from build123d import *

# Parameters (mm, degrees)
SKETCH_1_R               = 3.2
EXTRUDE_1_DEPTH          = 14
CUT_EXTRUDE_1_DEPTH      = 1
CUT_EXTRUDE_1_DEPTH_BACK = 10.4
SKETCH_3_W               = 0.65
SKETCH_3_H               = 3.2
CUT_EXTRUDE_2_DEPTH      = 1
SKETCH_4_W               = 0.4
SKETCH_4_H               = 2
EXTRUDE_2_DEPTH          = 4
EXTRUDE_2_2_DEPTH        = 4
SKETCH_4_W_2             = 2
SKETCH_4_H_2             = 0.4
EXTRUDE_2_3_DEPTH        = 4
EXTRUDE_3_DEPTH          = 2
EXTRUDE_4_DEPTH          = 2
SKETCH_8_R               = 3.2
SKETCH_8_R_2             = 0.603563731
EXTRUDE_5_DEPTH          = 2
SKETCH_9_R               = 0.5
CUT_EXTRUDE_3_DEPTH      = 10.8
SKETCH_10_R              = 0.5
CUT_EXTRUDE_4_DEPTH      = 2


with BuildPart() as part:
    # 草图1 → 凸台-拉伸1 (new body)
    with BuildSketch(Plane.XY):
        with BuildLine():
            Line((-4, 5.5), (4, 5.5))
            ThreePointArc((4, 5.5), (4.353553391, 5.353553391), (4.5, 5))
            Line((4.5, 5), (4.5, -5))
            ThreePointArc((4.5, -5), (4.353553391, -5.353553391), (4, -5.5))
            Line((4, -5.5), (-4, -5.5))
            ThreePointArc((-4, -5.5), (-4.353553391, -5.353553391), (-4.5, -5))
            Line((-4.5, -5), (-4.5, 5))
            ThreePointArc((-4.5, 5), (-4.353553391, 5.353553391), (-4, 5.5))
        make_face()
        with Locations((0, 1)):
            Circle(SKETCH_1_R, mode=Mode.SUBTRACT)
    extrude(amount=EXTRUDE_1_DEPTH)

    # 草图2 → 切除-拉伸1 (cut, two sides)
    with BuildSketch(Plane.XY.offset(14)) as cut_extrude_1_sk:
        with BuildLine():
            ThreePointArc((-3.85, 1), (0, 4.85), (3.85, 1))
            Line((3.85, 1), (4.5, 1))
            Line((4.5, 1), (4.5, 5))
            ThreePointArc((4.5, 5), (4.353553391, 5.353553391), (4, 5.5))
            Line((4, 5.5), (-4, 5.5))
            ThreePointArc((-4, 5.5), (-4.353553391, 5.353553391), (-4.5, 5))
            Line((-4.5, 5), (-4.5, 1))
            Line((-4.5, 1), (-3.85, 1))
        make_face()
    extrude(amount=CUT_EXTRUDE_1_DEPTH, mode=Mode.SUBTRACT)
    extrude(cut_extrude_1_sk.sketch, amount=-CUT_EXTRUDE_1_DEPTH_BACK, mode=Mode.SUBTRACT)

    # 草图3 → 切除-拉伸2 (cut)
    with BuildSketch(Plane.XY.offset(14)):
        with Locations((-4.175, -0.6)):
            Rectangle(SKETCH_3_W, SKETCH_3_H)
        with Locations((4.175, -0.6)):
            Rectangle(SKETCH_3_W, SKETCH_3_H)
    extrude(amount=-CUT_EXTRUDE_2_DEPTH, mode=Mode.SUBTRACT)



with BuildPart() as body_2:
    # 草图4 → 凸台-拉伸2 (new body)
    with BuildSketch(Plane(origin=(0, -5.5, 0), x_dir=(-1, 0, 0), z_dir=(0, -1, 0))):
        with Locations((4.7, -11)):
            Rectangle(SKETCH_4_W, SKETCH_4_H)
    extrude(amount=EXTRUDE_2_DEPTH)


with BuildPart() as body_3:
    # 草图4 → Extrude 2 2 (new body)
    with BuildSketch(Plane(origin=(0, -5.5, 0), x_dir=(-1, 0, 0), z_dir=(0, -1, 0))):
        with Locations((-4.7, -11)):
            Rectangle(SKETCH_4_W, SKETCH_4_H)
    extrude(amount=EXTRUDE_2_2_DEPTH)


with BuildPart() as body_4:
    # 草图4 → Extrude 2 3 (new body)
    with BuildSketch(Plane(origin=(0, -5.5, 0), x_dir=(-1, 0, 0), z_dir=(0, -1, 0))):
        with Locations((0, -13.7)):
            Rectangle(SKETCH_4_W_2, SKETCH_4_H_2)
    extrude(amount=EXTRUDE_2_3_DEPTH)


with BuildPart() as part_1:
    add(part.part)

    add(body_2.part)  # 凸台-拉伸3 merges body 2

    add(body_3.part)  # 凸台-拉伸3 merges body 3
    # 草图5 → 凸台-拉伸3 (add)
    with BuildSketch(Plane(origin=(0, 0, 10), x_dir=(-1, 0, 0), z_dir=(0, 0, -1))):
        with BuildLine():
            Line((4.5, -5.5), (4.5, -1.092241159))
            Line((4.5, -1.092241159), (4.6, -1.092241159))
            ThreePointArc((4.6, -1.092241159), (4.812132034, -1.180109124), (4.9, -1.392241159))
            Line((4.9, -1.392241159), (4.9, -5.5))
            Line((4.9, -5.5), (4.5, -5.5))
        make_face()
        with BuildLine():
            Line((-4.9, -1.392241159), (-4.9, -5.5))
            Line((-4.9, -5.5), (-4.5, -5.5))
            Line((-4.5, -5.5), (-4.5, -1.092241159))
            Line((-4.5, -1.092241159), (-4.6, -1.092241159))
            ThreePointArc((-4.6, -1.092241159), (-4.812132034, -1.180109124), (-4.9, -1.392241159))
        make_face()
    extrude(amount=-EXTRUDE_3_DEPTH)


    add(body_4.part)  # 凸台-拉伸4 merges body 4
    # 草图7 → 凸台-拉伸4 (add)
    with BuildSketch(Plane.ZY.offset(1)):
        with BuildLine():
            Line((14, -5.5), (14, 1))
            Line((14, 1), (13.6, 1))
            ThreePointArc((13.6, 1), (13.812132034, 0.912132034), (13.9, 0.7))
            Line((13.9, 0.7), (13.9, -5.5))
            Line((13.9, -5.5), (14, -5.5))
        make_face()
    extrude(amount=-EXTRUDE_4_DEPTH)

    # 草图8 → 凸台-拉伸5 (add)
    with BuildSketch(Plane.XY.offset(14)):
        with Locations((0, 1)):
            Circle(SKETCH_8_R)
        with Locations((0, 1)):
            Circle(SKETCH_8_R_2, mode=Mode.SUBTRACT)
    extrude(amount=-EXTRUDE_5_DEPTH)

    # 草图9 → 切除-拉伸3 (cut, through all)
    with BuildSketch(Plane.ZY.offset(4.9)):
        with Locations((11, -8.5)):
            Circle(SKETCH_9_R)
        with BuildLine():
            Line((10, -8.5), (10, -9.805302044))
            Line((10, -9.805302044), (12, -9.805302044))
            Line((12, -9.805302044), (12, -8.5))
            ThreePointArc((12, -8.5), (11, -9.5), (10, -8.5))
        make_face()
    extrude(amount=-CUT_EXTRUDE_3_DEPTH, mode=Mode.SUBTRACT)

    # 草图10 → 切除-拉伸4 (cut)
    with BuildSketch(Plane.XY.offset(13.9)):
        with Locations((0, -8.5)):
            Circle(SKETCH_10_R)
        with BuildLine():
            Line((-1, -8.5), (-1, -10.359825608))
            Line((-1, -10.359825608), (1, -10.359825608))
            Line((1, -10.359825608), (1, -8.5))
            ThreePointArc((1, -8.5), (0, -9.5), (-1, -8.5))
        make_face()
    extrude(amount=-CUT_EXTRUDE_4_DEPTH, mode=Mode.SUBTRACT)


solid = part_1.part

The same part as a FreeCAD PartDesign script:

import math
import FreeCAD as App
import Part
import Sketcher
from FreeCAD import Vector


def add_polygon(sketch, points):
    """Adds a closed chain of lines whose ends are joined by coincident constraints."""
    first, n = sketch.GeometryCount, len(points)
    for a, b in zip(points, points[1:] + points[:1]):
        sketch.addGeometry(Part.LineSegment(App.Vector(*a, 0), App.Vector(*b, 0)), False)
    for i in range(n):
        sketch.addConstraint(Sketcher.Constraint("Coincident", first + i, 2, first + (i + 1) % n, 1))

doc = App.newDocument("Part")
body = doc.addObject("PartDesign::Body", "Body")

sketch1 = doc.addObject("Sketcher::SketchObject", "Sketch")
body.addObject(sketch1)
sketch1.AttachmentSupport = (doc.XY_Plane, [""])
sketch1.MapMode = "FlatFace"
sketch1.addGeometry([
    Part.LineSegment(Vector(4, 5.5, 0), Vector(-4, 5.5, 0)),
    Part.ArcOfCircle(Part.Circle(Vector(-4, 5, 0), Vector(0, 0, 1), 0.5), math.radians(90), math.radians(180)),
    Part.LineSegment(Vector(-4.5, 5, 0), Vector(-4.5, -5, 0)),
    Part.ArcOfCircle(Part.Circle(Vector(-4, -5, 0), Vector(0, 0, 1), 0.5), math.radians(180), math.radians(270)),
    Part.LineSegment(Vector(-4, -5.5, 0), Vector(4, -5.5, 0)),
    Part.ArcOfCircle(Part.Circle(Vector(4, -5, 0), Vector(0, 0, 1), 0.5), math.radians(-90), math.radians(0)),
    Part.LineSegment(Vector(4.5, -5, 0), Vector(4.5, 5, 0)),
    Part.ArcOfCircle(Part.Circle(Vector(4, 5, 0), Vector(0, 0, 1), 0.5), math.radians(0), math.radians(90)),
    Part.Circle(Vector(0, 1, 0), Vector(0, 0, 1), 3.2),
], False)
sketch1.addConstraint([
    Sketcher.Constraint("Tangent", 0, 2, 1, 1),
    Sketcher.Constraint("Tangent", 1, 2, 2, 1),
    Sketcher.Constraint("Tangent", 2, 2, 3, 1),
    Sketcher.Constraint("Tangent", 3, 2, 4, 1),
    Sketcher.Constraint("Tangent", 4, 2, 5, 1),
    Sketcher.Constraint("Tangent", 5, 2, 6, 1),
    Sketcher.Constraint("Tangent", 6, 2, 7, 1),
    Sketcher.Constraint("Tangent", 7, 2, 0, 1),
    Sketcher.Constraint("Horizontal", 0),
    Sketcher.Constraint("Vertical", 2),
    Sketcher.Constraint("Horizontal", 4),
    Sketcher.Constraint("Vertical", 6),
    Sketcher.Constraint("Equal", 1, 3),
    Sketcher.Constraint("Equal", 3, 5),
    Sketcher.Constraint("Equal", 5, 7),
    Sketcher.Constraint("Symmetric", 1, 3, 5, 3, -1, 1),
    Sketcher.Constraint("PointOnObject", 8, 3, -2),
    Sketcher.Constraint("Diameter", 8, 6.4),
    Sketcher.Constraint("Radius", 1, 0.5),
    Sketcher.Constraint("DistanceX", 0, 2, 0, 1, 8.0),
    Sketcher.Constraint("DistanceY", 2, 2, 2, 1, 10.0),
    Sketcher.Constraint("DistanceY", -1, 1, 8, 3, 1.0),
])
pad1 = doc.addObject("PartDesign::Pad", "Pad")
body.addObject(pad1)
pad1.Profile = sketch1
pad1.Length = 14

sketch2 = doc.addObject("Sketcher::SketchObject", "Sketch001")
body.addObject(sketch2)
sketch2.AttachmentSupport = (doc.XY_Plane, [""])
sketch2.MapMode = "FlatFace"
sketch2.AttachmentOffset = App.Placement(Vector(0, 0, 14), App.Rotation())
sketch2.addGeometry([
    Part.ArcOfCircle(Part.Circle(Vector(0, 1, 0), Vector(0, 0, 1), 3.85), math.radians(0), math.radians(180)),
    Part.LineSegment(Vector(3.85, 1, 0), Vector(4.5, 1, 0)),
    Part.LineSegment(Vector(4.5, 1, 0), Vector(4.5, 5, 0)),
    Part.ArcOfCircle(Part.Circle(Vector(4, 5, 0), Vector(0, 0, 1), 0.5), math.radians(0), math.radians(90)),
    Part.LineSegment(Vector(4, 5.5, 0), Vector(-4, 5.5, 0)),
    Part.ArcOfCircle(Part.Circle(Vector(-4, 5, 0), Vector(0, 0, 1), 0.5), math.radians(90), math.radians(180)),
    Part.LineSegment(Vector(-4.5, 5, 0), Vector(-4.5, 1, 0)),
    Part.LineSegment(Vector(-4.5, 1, 0), Vector(-3.85, 1, 0)),
], False)
sketch2.addConstraint([
    Sketcher.Constraint("Coincident", 0, 1, 1, 1),
    Sketcher.Constraint("Coincident", 1, 2, 2, 1),
    Sketcher.Constraint("Tangent", 2, 2, 3, 1),
    Sketcher.Constraint("Tangent", 3, 2, 4, 1),
    Sketcher.Constraint("Tangent", 4, 2, 5, 1),
    Sketcher.Constraint("Tangent", 5, 2, 6, 1),
    Sketcher.Constraint("Coincident", 6, 2, 7, 1),
    Sketcher.Constraint("Coincident", 7, 2, 0, 2),
    Sketcher.Constraint("Horizontal", 1),
    Sketcher.Constraint("Vertical", 2),
    Sketcher.Constraint("Horizontal", 4),
    Sketcher.Constraint("Vertical", 6),
    Sketcher.Constraint("Horizontal", 7),
    Sketcher.Constraint("Equal", 3, 5),
    Sketcher.Constraint("Symmetric", 1, 2, 6, 2, -2),
    Sketcher.Constraint("PointOnObject", 0, 3, -2),
    Sketcher.Constraint("Radius", 3, 0.5),
    Sketcher.Constraint("DistanceX", 4, 2, 4, 1, 8.0),
    Sketcher.Constraint("DistanceY", 2, 1, 2, 2, 4.0),
    Sketcher.Constraint("Radius", 0, 3.85),
    Sketcher.Constraint("DistanceY", -1, 1, 0, 3, 1.0),
    Sketcher.Constraint("DistanceY", -1, 1, 3, 3, 5.0),
])
pocket1 = doc.addObject("PartDesign::Pocket", "Pocket")
body.addObject(pocket1)
pocket1.Profile = sketch2
pocket1.Type = "TwoLengths"
pocket1.Length = 1
pocket1.Length2 = 10.4
pocket1.Reversed = True

sketch3 = doc.addObject("Sketcher::SketchObject", "Sketch002")
body.addObject(sketch3)
sketch3.AttachmentSupport = (doc.XY_Plane, [""])
sketch3.MapMode = "FlatFace"
sketch3.AttachmentOffset = App.Placement(Vector(0, 0, 14), App.Rotation())
add_polygon(sketch3, [(-4.5, 1), (-4.5, -2.2), (-3.9, -2.2), (-3.9, 1)])
add_polygon(sketch3, [(3.9, 1), (3.9, -2.2), (4.5, -2.2), (4.5, 1)])
sketch3.addConstraint([
    Sketcher.Constraint("Vertical", 0),
    Sketcher.Constraint("Horizontal", 1),
    Sketcher.Constraint("Vertical", 2),
    Sketcher.Constraint("Horizontal", 3),
    Sketcher.Constraint("Vertical", 4),
    Sketcher.Constraint("Horizontal", 5),
    Sketcher.Constraint("Vertical", 6),
    Sketcher.Constraint("Horizontal", 7),
    Sketcher.Constraint("Symmetric", 1, 2, 4, 2, -2),
    Sketcher.Constraint("Symmetric", 3, 2, 6, 2, -2),
    Sketcher.Constraint("DistanceY", 0, 2, 0, 1, 3.2),
    Sketcher.Constraint("DistanceY", -1, 1, 2, 2, 1.0),
    Sketcher.Constraint("DistanceX", 0, 2, 5, 2, 9.0),
    Sketcher.Constraint("DistanceX", 1, 1, 1, 2, 0.65),
])
pocket2 = doc.addObject("PartDesign::Pocket", "Pocket001")
body.addObject(pocket2)
pocket2.Profile = sketch3
pocket2.Length = 1
body2 = doc.addObject("PartDesign::Body", "Body001")

sketch4 = doc.addObject("Sketcher::SketchObject", "Sketch003")
body2.addObject(sketch4)
sketch4.AttachmentSupport = (doc.getObject("XZ_Plane001"), [""])
sketch4.MapMode = "FlatFace"
sketch4.AttachmentOffset = App.Placement(Vector(0, 0, 5.5), App.Rotation())
add_polygon(sketch4, [(-4.5, 10), (-4.5, 12), (-4.9, 12), (-4.9, 10)])
sketch4.addConstraint([
    Sketcher.Constraint("Vertical", 0),
    Sketcher.Constraint("Horizontal", 1),
    Sketcher.Constraint("Vertical", 2),
    Sketcher.Constraint("Horizontal", 3),
    Sketcher.Constraint("DistanceY", 0, 1, 0, 2, 2.0),
    Sketcher.Constraint("DistanceX", 1, 2, 1, 1, 0.4),
    Sketcher.Constraint("DistanceY", -1, 1, 0, 2, 12.0),
    Sketcher.Constraint("DistanceX", 0, 2, -1, 1, 4.5),
])
pad2 = doc.addObject("PartDesign::Pad", "Pad001")
body2.addObject(pad2)
pad2.Profile = sketch4
pad2.Length = 4
body3 = doc.addObject("PartDesign::Body", "Body002")

sketch5 = doc.addObject("Sketcher::SketchObject", "Sketch004")
body3.addObject(sketch5)
sketch5.AttachmentSupport = (doc.getObject("XZ_Plane002"), [""])
sketch5.MapMode = "FlatFace"
sketch5.AttachmentOffset = App.Placement(Vector(0, 0, 5.5), App.Rotation())
add_polygon(sketch5, [(4.9, 10), (4.9, 12), (4.5, 12), (4.5, 10)])
sketch5.addConstraint([
    Sketcher.Constraint("Vertical", 0),
    Sketcher.Constraint("Horizontal", 1),
    Sketcher.Constraint("Vertical", 2),
    Sketcher.Constraint("Horizontal", 3),
    Sketcher.Constraint("DistanceY", 0, 1, 0, 2, 2.0),
    Sketcher.Constraint("DistanceX", 1, 2, 1, 1, 0.4),
    Sketcher.Constraint("DistanceY", -1, 1, 0, 2, 12.0),
    Sketcher.Constraint("DistanceX", -1, 1, 0, 2, 4.9),
])
pad3 = doc.addObject("PartDesign::Pad", "Pad002")
body3.addObject(pad3)
pad3.Profile = sketch5
pad3.Length = 4
body4 = doc.addObject("PartDesign::Body", "Body003")

sketch6 = doc.addObject("Sketcher::SketchObject", "Sketch005")
body4.addObject(sketch6)
sketch6.AttachmentSupport = (doc.getObject("XZ_Plane003"), [""])
sketch6.MapMode = "FlatFace"
sketch6.AttachmentOffset = App.Placement(Vector(0, 0, 5.5), App.Rotation())
add_polygon(sketch6, [(1, 13.5), (1, 13.9), (-1, 13.9), (-1, 13.5)])
sketch6.addConstraint([
    Sketcher.Constraint("Vertical", 0),
    Sketcher.Constraint("Horizontal", 1),
    Sketcher.Constraint("Vertical", 2),
    Sketcher.Constraint("Horizontal", 3),
    Sketcher.Constraint("DistanceX", 1, 2, 1, 1, 2.0),
    Sketcher.Constraint("DistanceY", 0, 1, 0, 2, 0.4),
    Sketcher.Constraint("DistanceX", -1, 1, 0, 2, 1.0),
    Sketcher.Constraint("DistanceY", -1, 1, 0, 2, 13.9),
])
pad4 = doc.addObject("PartDesign::Pad", "Pad003")
body4.addObject(pad4)
pad4.Profile = sketch6
pad4.Length = 4
body.AllowCompound = True
doc.recompute()

boolean = doc.addObject("PartDesign::Boolean", "Boolean")
body.addObject(boolean)
boolean.Type = "Fuse"
boolean.addObjects([body2])
doc.recompute()

boolean2 = doc.addObject("PartDesign::Boolean", "Boolean001")
body.addObject(boolean2)
boolean2.Type = "Fuse"
boolean2.addObjects([body3])

sketch7 = doc.addObject("Sketcher::SketchObject", "Sketch006")
body.addObject(sketch7)
sketch7.AttachmentSupport = (doc.XY_Plane, [""])
sketch7.MapMode = "FlatFace"
sketch7.AttachmentOffset = App.Placement(Vector(0, 0, 10), App.Rotation())
sketch7.addGeometry([
    Part.LineSegment(Vector(-4.5, -1.09, 0), Vector(-4.5, -5.5, 0)),
    Part.LineSegment(Vector(-4.5, -5.5, 0), Vector(-4.9, -5.5, 0)),
    Part.LineSegment(Vector(-4.9, -5.5, 0), Vector(-4.9, -1.39, 0)),
    Part.ArcOfCircle(Part.Circle(Vector(-4.6, -1.39, 0), Vector(0, 0, 1), 0.3), math.radians(90), math.radians(180)),
    Part.LineSegment(Vector(-4.6, -1.09, 0), Vector(-4.5, -1.09, 0)),
    Part.LineSegment(Vector(4.9, -1.39, 0), Vector(4.9, -5.5, 0)),
    Part.LineSegment(Vector(4.9, -5.5, 0), Vector(4.5, -5.5, 0)),
    Part.LineSegment(Vector(4.5, -5.5, 0), Vector(4.5, -1.09, 0)),
    Part.LineSegment(Vector(4.5, -1.09, 0), Vector(4.6, -1.09, 0)),
    Part.ArcOfCircle(Part.Circle(Vector(4.6, -1.39, 0), Vector(0, 0, 1), 0.3), math.radians(0), math.radians(90)),
], False)
sketch7.addConstraint([
    Sketcher.Constraint("Coincident", 0, 2, 1, 1),
    Sketcher.Constraint("Coincident", 1, 2, 2, 1),
    Sketcher.Constraint("Tangent", 2, 2, 3, 2),
    Sketcher.Constraint("Tangent", 3, 1, 4, 1),
    Sketcher.Constraint("Coincident", 4, 2, 0, 1),
    Sketcher.Constraint("Coincident", 5, 2, 6, 1),
    Sketcher.Constraint("Coincident", 6, 2, 7, 1),
    Sketcher.Constraint("Coincident", 7, 2, 8, 1),
    Sketcher.Constraint("Tangent", 8, 2, 9, 2),
    Sketcher.Constraint("Tangent", 9, 1, 5, 1),
    Sketcher.Constraint("Vertical", 0),
    Sketcher.Constraint("Horizontal", 1),
    Sketcher.Constraint("Vertical", 2),
    Sketcher.Constraint("Horizontal", 4),
    Sketcher.Constraint("Vertical", 5),
    Sketcher.Constraint("Horizontal", 6),
    Sketcher.Constraint("Vertical", 7),
    Sketcher.Constraint("Horizontal", 8),
    Sketcher.Constraint("Equal", 3, 9),
    Sketcher.Constraint("Symmetric", 3, 3, 9, 3, -2),
    Sketcher.Constraint("Symmetric", 0, 2, 6, 2, -2),
    Sketcher.Constraint("Radius", 3, 0.3),
    Sketcher.Constraint("DistanceX", 1, 2, 1, 1, 0.4),
    Sketcher.Constraint("DistanceX", 0, 2, 6, 2, 9.0),
    Sketcher.Constraint("DistanceY", 0, 2, -1, 1, 5.5),
    Sketcher.Constraint("DistanceY", 0, 2, 0, 1, 4.407759),
])
pad5 = doc.addObject("PartDesign::Pad", "Pad004")
body.addObject(pad5)
pad5.Profile = sketch7
pad5.Length = 2
doc.recompute()

boolean3 = doc.addObject("PartDesign::Boolean", "Boolean002")
body.addObject(boolean3)
boolean3.Type = "Fuse"
boolean3.addObjects([body4])

sketch8 = doc.addObject("Sketcher::SketchObject", "Sketch007")
body.addObject(sketch8)
sketch8.AttachmentSupport = (doc.YZ_Plane, [""])
sketch8.MapMode = "FlatFace"
sketch8.AttachmentOffset = App.Placement(Vector(0, 0, -1), App.Rotation())
sketch8.addGeometry([
    Part.LineSegment(Vector(-5.5, 14, 0), Vector(1, 14, 0)),
    Part.LineSegment(Vector(1, 14, 0), Vector(1, 13.6, 0)),
    Part.ArcOfCircle(Part.Circle(Vector(0.7, 13.6, 0), Vector(0, 0, 1), 0.3), math.radians(0), math.radians(90)),
    Part.LineSegment(Vector(0.7, 13.9, 0), Vector(-5.5, 13.9, 0)),
    Part.LineSegment(Vector(-5.5, 13.9, 0), Vector(-5.5, 14, 0)),
], False)
sketch8.addConstraint([
    Sketcher.Constraint("Coincident", 0, 2, 1, 1),
    Sketcher.Constraint("Tangent", 1, 2, 2, 1),
    Sketcher.Constraint("Tangent", 2, 2, 3, 1),
    Sketcher.Constraint("Coincident", 3, 2, 4, 1),
    Sketcher.Constraint("Coincident", 4, 2, 0, 1),
    Sketcher.Constraint("Horizontal", 0),
    Sketcher.Constraint("Vertical", 1),
    Sketcher.Constraint("Horizontal", 3),
    Sketcher.Constraint("Vertical", 4),
    Sketcher.Constraint("Radius", 2, 0.3),
    Sketcher.Constraint("DistanceX", 0, 1, 0, 2, 6.5),
    Sketcher.Constraint("DistanceY", 1, 2, 1, 1, 0.4),
    Sketcher.Constraint("DistanceX", -1, 1, 0, 2, 1.0),
    Sketcher.Constraint("DistanceY", -1, 1, 0, 2, 14.0),
])
pad6 = doc.addObject("PartDesign::Pad", "Pad005")
body.addObject(pad6)
pad6.Profile = sketch8
pad6.Length = 2

sketch9 = doc.addObject("Sketcher::SketchObject", "Sketch008")
body.addObject(sketch9)
sketch9.AttachmentSupport = (doc.XY_Plane, [""])
sketch9.MapMode = "FlatFace"
sketch9.AttachmentOffset = App.Placement(Vector(0, 0, 14), App.Rotation())
sketch9.addGeometry([
    Part.Circle(Vector(0, 1, 0), Vector(0, 0, 1), 3.2),
    Part.Circle(Vector(0, 1, 0), Vector(0, 0, 1), 0.6),
], False)
sketch9.addConstraint([
    Sketcher.Constraint("Coincident", 1, 3, 0, 3),
    Sketcher.Constraint("PointOnObject", 0, 3, -2),
    Sketcher.Constraint("Diameter", 0, 6.4),
    Sketcher.Constraint("DistanceY", -1, 1, 0, 3, 1.0),
    Sketcher.Constraint("Diameter", 1, 1.207127),
])
pad7 = doc.addObject("PartDesign::Pad", "Pad006")
body.addObject(pad7)
pad7.Profile = sketch9
pad7.Length = 2
pad7.Reversed = True

sketch10 = doc.addObject("Sketcher::SketchObject", "Sketch009")
body.addObject(sketch10)
sketch10.AttachmentSupport = (doc.YZ_Plane, [""])
sketch10.MapMode = "FlatFace"
sketch10.AttachmentOffset = App.Placement(Vector(0, 0, -4.9), App.Rotation())
sketch10.addGeometry([
    Part.Circle(Vector(-8.5, 11, 0), Vector(0, 0, 1), 0.5),
    Part.LineSegment(Vector(-8.5, 10, 0), Vector(-9.8, 10, 0)),
    Part.LineSegment(Vector(-9.8, 10, 0), Vector(-9.8, 12, 0)),
    Part.LineSegment(Vector(-9.8, 12, 0), Vector(-8.5, 12, 0)),
    Part.ArcOfCircle(Part.Circle(Vector(-8.5, 11, 0), Vector(0, 0, 1), 1), math.radians(90), math.radians(270)),
], False)
sketch10.addConstraint([
    Sketcher.Constraint("Coincident", 1, 2, 2, 1),
    Sketcher.Constraint("Coincident", 2, 2, 3, 1),
    Sketcher.Constraint("Tangent", 3, 2, 4, 1),
    Sketcher.Constraint("Tangent", 4, 2, 1, 1),
    Sketcher.Constraint("Horizontal", 1),
    Sketcher.Constraint("Vertical", 2),
    Sketcher.Constraint("Horizontal", 3),
    Sketcher.Constraint("Coincident", 4, 3, 0, 3),
    Sketcher.Constraint("Diameter", 0, 1.0),
    Sketcher.Constraint("Radius", 4, 1.0),
    Sketcher.Constraint("DistanceY", -1, 1, 0, 3, 11.0),
    Sketcher.Constraint("DistanceX", 0, 3, -1, 1, 8.5),
    Sketcher.Constraint("DistanceX", 1, 2, 1, 1, 1.305302),
])
pocket3 = doc.addObject("PartDesign::Pocket", "Pocket002")
body.addObject(pocket3)
pocket3.Profile = sketch10
pocket3.Type = "ThroughAll"
pocket3.Reversed = True

sketch11 = doc.addObject("Sketcher::SketchObject", "Sketch010")
body.addObject(sketch11)
sketch11.AttachmentSupport = (doc.XY_Plane, [""])
sketch11.MapMode = "FlatFace"
sketch11.AttachmentOffset = App.Placement(Vector(0, 0, 13.9), App.Rotation())
sketch11.addGeometry([
    Part.Circle(Vector(0, -8.5, 0), Vector(0, 0, 1), 0.5),
    Part.LineSegment(Vector(-1, -8.5, 0), Vector(-1, -10.4, 0)),
    Part.LineSegment(Vector(-1, -10.4, 0), Vector(1, -10.4, 0)),
    Part.LineSegment(Vector(1, -10.4, 0), Vector(1, -8.5, 0)),
    Part.ArcOfCircle(Part.Circle(Vector(0, -8.5, 0), Vector(0, 0, 1), 1), math.radians(180), math.radians(360)),
], False)
sketch11.addConstraint([
    Sketcher.Constraint("Coincident", 1, 2, 2, 1),
    Sketcher.Constraint("Coincident", 2, 2, 3, 1),
    Sketcher.Constraint("Tangent", 3, 2, 4, 2),
    Sketcher.Constraint("Tangent", 4, 1, 1, 1),
    Sketcher.Constraint("Vertical", 1),
    Sketcher.Constraint("Horizontal", 2),
    Sketcher.Constraint("Vertical", 3),
    Sketcher.Constraint("Coincident", 4, 3, 0, 3),
    Sketcher.Constraint("PointOnObject", 0, 3, -2),
    Sketcher.Constraint("Diameter", 0, 1.0),
    Sketcher.Constraint("Radius", 4, 1.0),
    Sketcher.Constraint("DistanceY", 0, 3, -1, 1, 8.5),
    Sketcher.Constraint("DistanceY", 1, 2, 1, 1, 1.859826),
])
pocket4 = doc.addObject("PartDesign::Pocket", "Pocket003")
body.addObject(pocket4)
pocket4.Profile = sketch11
pocket4.Length = 2

doc.recompute()
